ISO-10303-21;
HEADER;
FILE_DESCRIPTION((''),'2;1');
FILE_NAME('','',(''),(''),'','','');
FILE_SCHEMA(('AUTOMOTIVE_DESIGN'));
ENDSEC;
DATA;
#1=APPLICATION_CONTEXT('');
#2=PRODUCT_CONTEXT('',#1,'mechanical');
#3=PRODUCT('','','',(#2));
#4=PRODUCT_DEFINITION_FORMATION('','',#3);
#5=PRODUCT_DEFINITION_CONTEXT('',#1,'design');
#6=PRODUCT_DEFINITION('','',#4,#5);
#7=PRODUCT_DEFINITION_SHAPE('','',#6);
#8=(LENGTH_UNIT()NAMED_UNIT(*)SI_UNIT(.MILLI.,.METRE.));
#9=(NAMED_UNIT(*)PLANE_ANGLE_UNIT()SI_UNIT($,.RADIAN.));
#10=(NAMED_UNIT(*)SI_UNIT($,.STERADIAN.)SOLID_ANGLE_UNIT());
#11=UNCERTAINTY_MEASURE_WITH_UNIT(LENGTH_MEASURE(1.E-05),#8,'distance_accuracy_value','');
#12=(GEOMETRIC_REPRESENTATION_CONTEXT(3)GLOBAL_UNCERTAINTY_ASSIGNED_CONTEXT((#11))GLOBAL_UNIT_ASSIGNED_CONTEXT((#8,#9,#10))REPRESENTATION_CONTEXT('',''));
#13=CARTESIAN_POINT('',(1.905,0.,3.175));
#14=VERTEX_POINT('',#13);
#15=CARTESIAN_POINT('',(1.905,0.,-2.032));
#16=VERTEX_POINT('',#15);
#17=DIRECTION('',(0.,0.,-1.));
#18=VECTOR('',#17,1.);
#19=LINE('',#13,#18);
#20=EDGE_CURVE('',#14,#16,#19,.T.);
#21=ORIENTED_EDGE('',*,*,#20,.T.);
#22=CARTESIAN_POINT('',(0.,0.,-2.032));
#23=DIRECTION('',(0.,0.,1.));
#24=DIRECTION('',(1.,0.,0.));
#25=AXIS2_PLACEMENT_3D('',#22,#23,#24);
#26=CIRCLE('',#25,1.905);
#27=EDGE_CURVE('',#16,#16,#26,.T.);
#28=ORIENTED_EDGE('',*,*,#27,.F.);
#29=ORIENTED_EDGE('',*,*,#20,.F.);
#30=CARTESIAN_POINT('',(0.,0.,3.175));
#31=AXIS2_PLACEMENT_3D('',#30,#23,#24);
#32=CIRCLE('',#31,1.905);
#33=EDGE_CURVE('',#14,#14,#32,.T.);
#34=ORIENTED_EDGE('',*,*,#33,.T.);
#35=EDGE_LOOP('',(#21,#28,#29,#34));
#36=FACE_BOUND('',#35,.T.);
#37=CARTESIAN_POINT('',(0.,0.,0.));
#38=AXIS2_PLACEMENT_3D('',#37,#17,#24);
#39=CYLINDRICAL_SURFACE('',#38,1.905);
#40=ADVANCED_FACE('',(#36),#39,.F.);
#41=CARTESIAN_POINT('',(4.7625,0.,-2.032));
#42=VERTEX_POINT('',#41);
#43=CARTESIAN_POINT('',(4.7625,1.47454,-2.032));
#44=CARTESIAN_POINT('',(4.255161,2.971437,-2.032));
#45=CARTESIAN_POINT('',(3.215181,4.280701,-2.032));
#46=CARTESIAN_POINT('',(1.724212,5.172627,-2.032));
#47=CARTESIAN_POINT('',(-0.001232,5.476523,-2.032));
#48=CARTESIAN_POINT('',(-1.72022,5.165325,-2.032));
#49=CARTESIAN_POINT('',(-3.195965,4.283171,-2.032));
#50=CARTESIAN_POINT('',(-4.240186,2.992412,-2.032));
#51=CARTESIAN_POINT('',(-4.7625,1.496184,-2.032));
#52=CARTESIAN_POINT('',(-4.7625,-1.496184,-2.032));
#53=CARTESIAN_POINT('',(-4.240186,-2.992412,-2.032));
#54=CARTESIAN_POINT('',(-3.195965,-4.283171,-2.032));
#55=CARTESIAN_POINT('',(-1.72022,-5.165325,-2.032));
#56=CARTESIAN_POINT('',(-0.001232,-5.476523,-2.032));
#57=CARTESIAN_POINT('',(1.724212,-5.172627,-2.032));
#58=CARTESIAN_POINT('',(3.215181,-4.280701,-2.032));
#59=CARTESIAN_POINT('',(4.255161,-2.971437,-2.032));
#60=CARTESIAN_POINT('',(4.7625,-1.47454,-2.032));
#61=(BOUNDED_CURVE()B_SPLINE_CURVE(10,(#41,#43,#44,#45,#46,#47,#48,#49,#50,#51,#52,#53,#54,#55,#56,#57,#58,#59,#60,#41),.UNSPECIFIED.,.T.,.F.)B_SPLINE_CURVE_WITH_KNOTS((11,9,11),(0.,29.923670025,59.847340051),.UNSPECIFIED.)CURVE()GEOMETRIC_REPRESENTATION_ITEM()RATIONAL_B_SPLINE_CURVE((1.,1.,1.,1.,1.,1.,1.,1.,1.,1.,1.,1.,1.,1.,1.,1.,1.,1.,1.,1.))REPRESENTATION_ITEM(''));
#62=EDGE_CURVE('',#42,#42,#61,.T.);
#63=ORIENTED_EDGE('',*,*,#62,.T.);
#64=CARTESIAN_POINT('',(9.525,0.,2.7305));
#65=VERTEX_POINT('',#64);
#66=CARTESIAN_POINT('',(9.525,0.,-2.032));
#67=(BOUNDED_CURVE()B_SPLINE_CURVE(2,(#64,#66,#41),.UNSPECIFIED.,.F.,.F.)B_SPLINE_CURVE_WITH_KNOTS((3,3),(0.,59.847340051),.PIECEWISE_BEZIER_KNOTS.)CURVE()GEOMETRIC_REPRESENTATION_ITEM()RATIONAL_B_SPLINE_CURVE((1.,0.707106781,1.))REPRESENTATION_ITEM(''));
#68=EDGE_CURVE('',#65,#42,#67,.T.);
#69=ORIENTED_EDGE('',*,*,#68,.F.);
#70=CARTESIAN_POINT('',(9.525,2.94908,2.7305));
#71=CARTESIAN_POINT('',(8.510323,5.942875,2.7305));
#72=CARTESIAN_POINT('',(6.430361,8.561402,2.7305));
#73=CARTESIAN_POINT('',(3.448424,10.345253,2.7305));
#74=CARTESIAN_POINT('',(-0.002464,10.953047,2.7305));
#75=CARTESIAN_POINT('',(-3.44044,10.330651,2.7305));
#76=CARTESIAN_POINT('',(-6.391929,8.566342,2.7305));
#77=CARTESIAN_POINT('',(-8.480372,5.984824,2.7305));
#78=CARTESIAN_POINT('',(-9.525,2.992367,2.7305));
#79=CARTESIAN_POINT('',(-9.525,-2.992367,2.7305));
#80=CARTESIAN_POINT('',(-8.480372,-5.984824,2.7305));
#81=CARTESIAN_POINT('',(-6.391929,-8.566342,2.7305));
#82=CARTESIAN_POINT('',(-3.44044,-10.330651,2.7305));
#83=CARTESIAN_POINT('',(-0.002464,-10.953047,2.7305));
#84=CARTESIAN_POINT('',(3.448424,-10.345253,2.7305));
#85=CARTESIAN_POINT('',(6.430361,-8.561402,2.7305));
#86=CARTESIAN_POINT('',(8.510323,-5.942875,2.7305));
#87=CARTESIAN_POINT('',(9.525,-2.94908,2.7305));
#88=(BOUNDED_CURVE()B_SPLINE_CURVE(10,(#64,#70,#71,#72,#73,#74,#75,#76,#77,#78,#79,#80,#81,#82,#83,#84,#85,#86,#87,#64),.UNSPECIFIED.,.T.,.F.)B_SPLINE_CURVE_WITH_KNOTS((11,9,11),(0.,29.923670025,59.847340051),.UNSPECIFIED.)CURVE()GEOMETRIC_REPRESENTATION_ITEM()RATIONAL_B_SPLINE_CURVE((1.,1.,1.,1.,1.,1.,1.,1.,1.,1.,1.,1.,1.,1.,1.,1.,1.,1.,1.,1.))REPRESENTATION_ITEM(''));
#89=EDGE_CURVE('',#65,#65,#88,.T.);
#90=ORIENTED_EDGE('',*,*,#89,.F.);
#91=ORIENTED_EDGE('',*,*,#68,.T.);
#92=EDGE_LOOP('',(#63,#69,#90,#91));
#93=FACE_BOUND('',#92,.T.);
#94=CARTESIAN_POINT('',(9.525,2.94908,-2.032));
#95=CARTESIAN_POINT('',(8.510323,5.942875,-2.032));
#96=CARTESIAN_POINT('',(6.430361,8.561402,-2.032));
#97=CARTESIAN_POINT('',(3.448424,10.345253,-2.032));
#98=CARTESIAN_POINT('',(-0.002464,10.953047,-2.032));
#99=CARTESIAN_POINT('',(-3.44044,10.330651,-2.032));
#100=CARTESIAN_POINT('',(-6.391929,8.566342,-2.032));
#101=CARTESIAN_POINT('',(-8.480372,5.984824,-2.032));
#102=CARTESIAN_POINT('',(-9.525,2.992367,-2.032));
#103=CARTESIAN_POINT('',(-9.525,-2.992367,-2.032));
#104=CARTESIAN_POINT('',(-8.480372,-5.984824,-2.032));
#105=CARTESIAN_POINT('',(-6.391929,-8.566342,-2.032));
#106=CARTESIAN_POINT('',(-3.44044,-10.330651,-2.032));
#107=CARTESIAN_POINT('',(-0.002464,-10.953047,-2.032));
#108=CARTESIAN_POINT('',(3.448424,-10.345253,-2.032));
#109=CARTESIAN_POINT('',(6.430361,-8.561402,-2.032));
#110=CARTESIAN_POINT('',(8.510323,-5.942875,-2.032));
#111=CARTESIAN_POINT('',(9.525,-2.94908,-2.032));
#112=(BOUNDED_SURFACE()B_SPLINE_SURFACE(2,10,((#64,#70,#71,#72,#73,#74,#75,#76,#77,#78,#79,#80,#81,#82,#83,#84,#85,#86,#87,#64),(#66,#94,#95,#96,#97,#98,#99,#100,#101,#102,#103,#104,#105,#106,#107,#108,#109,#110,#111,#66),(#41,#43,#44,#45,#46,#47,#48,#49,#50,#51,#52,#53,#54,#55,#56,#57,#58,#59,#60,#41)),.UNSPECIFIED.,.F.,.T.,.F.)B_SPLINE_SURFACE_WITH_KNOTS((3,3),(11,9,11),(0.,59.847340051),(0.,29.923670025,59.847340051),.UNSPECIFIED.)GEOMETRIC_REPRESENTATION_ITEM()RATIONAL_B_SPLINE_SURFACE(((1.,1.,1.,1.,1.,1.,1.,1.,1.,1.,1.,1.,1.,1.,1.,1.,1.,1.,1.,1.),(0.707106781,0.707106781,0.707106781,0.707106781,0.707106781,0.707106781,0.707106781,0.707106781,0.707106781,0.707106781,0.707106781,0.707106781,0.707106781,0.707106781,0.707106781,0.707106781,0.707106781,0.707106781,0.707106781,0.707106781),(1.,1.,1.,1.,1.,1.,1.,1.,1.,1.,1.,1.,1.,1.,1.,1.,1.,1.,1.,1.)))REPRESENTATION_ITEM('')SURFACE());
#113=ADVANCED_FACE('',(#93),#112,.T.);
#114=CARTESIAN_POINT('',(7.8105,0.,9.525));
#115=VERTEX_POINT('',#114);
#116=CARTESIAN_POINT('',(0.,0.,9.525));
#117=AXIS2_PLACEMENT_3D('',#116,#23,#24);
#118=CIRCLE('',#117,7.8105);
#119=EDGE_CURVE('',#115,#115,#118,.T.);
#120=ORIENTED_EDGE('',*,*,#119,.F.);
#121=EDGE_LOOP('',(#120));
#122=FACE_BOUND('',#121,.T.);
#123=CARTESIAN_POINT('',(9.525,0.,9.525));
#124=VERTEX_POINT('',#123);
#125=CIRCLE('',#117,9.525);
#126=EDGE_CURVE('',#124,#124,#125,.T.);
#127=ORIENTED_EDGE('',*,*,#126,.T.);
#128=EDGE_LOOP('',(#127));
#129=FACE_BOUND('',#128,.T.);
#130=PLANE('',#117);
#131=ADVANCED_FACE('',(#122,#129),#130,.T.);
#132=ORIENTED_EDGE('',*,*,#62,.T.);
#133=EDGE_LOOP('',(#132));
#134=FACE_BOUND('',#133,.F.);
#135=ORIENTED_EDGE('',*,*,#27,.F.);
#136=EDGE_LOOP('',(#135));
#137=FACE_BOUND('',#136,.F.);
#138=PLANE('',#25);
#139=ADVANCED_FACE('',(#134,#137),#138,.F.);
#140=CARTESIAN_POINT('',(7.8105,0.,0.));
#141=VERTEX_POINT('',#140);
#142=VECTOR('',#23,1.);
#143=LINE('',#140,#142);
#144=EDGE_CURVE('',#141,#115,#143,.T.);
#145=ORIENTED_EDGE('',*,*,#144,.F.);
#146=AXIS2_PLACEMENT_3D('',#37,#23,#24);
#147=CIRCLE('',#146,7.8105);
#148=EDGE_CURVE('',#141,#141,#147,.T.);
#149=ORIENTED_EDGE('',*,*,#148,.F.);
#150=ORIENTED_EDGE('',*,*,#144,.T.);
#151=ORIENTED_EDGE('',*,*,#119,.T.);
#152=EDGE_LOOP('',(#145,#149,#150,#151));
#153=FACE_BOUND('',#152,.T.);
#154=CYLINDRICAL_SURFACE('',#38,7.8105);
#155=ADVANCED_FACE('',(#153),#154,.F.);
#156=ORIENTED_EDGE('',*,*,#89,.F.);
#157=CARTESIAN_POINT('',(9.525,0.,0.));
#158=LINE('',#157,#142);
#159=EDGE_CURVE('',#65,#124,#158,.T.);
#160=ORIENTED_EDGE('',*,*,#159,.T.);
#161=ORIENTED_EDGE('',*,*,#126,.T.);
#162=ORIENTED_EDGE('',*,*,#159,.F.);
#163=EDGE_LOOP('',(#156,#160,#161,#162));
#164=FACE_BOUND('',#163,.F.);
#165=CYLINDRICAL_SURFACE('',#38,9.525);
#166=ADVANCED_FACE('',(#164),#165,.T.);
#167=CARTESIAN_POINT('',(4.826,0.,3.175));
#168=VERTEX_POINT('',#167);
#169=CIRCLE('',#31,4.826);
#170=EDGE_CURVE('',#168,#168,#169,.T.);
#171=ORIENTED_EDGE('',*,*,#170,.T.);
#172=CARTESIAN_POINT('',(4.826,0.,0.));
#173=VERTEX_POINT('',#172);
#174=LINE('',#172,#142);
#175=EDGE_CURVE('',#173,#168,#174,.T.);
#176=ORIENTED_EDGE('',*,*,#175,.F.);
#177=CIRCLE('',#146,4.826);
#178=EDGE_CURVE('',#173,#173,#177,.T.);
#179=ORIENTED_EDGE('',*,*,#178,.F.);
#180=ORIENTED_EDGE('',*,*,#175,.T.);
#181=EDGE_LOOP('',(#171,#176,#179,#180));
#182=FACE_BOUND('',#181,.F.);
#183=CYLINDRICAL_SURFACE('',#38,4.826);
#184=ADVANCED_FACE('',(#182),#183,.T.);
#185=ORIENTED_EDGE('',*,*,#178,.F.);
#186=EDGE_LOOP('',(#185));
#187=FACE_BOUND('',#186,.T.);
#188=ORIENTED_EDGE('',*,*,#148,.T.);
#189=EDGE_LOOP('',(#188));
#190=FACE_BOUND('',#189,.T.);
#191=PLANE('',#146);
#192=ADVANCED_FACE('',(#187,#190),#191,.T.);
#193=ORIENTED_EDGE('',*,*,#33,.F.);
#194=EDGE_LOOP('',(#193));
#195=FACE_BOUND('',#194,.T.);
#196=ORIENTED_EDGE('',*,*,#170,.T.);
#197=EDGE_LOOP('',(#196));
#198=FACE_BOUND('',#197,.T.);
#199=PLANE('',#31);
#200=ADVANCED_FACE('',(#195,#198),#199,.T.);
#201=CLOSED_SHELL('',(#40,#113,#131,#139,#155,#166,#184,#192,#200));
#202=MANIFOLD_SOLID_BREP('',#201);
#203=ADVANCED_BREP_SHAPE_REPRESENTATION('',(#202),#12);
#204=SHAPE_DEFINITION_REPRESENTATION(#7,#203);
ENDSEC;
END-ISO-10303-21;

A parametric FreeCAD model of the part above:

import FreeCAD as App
import Part
import Sketcher
Q = App.Units.Quantity


def edges_at(feature, points):
    """Names of the edges that pass closest to the given points."""
    edges = feature.Shape.Edges
    near = lambda p: min(range(len(edges)), key=lambda i: edges[i].distToShape(Part.Vertex(*p))[0])
    return sorted({f"Edge{near(p) + 1}" for p in points})

doc = App.newDocument("Part")
body = doc.addObject("PartDesign::Body", "Body")

sketch1 = body.newObject("Sketcher::SketchObject", "Sketch")
sketch1.AttachmentSupport = (doc.getObject("XY_Plane"), [""])
sketch1.MapMode = "FlatFace"
sketch1.addGeometry([
    Part.Circle(App.Vector(0, 0, 0), App.Vector(0, 0, 1), 9.5),
    Part.Circle(App.Vector(0, 0, 0), App.Vector(0, 0, 1), 1.9),
], False)
sketch1.addConstraint([
    Sketcher.Constraint("Coincident", 0, 3, -1, 1),
    Sketcher.Constraint("Coincident", 1, 3, -1, 1),
    Sketcher.Constraint("Diameter", 0, Q("0.75 in")),
    Sketcher.Constraint("Diameter", 1, Q("0.15 in")),
])
pad1 = body.newObject("PartDesign::Pad", "Pad")
pad1.Profile = sketch1
pad1.Length = Q("0.08 in")
pad1.Reversed = True

sketch2 = body.newObject("Sketcher::SketchObject", "Sketch001")
sketch2.AttachmentSupport = (doc.getObject("XY_Plane"), [""])
sketch2.MapMode = "FlatFace"
sketch2.addGeometry([
    Part.Circle(App.Vector(0, 0, 0), App.Vector(0, 0, 1), 10),
    Part.Circle(App.Vector(0, 0, 0), App.Vector(0, 0, 1), 8),
], False)
sketch2.addConstraint([
    Sketcher.Constraint("Coincident", 0, 3, -1, 1),
    Sketcher.Constraint("Coincident", 1, 3, -1, 1),
    Sketcher.Constraint("Diameter", 0, Q("0.75 in")),
    Sketcher.Constraint("Diameter", 1, Q("0.615 in")),
])
pad2 = body.newObject("PartDesign::Pad", "Pad001")
pad2.Profile = sketch2
pad2.Length = Q("0.375 in")
doc.recompute()

fillet = body.newObject("PartDesign::Fillet", "Fillet")
fillet.Base = (pad2, edges_at(pad2, [(-9.525, 0, -2.032)]))
fillet.Radius = Q("0.1875 in")

sketch3 = body.newObject("Sketcher::SketchObject", "Sketch002")
sketch3.AttachmentSupport = (doc.getObject("XY_Plane"), [""])
sketch3.MapMode = "FlatFace"
sketch3.addGeometry([
    Part.Circle(App.Vector(0, 0, 0), App.Vector(0, 0, 1), 4.8),
    Part.Circle(App.Vector(0, 0, 0), App.Vector(0, 0, 1), 1.9),
], False)
sketch3.addConstraint([
    Sketcher.Constraint("Coincident", 0, 3, -1, 1),
    Sketcher.Constraint("Coincident", 1, 3, -1, 1),
    Sketcher.Constraint("Diameter", 0, Q("0.38 in")),
    Sketcher.Constraint("Diameter", 1, Q("0.15 in")),
])
pad3 = body.newObject("PartDesign::Pad", "Pad002")
pad3.Profile = sketch3
pad3.Length = Q("0.125 in")

doc.recompute()
